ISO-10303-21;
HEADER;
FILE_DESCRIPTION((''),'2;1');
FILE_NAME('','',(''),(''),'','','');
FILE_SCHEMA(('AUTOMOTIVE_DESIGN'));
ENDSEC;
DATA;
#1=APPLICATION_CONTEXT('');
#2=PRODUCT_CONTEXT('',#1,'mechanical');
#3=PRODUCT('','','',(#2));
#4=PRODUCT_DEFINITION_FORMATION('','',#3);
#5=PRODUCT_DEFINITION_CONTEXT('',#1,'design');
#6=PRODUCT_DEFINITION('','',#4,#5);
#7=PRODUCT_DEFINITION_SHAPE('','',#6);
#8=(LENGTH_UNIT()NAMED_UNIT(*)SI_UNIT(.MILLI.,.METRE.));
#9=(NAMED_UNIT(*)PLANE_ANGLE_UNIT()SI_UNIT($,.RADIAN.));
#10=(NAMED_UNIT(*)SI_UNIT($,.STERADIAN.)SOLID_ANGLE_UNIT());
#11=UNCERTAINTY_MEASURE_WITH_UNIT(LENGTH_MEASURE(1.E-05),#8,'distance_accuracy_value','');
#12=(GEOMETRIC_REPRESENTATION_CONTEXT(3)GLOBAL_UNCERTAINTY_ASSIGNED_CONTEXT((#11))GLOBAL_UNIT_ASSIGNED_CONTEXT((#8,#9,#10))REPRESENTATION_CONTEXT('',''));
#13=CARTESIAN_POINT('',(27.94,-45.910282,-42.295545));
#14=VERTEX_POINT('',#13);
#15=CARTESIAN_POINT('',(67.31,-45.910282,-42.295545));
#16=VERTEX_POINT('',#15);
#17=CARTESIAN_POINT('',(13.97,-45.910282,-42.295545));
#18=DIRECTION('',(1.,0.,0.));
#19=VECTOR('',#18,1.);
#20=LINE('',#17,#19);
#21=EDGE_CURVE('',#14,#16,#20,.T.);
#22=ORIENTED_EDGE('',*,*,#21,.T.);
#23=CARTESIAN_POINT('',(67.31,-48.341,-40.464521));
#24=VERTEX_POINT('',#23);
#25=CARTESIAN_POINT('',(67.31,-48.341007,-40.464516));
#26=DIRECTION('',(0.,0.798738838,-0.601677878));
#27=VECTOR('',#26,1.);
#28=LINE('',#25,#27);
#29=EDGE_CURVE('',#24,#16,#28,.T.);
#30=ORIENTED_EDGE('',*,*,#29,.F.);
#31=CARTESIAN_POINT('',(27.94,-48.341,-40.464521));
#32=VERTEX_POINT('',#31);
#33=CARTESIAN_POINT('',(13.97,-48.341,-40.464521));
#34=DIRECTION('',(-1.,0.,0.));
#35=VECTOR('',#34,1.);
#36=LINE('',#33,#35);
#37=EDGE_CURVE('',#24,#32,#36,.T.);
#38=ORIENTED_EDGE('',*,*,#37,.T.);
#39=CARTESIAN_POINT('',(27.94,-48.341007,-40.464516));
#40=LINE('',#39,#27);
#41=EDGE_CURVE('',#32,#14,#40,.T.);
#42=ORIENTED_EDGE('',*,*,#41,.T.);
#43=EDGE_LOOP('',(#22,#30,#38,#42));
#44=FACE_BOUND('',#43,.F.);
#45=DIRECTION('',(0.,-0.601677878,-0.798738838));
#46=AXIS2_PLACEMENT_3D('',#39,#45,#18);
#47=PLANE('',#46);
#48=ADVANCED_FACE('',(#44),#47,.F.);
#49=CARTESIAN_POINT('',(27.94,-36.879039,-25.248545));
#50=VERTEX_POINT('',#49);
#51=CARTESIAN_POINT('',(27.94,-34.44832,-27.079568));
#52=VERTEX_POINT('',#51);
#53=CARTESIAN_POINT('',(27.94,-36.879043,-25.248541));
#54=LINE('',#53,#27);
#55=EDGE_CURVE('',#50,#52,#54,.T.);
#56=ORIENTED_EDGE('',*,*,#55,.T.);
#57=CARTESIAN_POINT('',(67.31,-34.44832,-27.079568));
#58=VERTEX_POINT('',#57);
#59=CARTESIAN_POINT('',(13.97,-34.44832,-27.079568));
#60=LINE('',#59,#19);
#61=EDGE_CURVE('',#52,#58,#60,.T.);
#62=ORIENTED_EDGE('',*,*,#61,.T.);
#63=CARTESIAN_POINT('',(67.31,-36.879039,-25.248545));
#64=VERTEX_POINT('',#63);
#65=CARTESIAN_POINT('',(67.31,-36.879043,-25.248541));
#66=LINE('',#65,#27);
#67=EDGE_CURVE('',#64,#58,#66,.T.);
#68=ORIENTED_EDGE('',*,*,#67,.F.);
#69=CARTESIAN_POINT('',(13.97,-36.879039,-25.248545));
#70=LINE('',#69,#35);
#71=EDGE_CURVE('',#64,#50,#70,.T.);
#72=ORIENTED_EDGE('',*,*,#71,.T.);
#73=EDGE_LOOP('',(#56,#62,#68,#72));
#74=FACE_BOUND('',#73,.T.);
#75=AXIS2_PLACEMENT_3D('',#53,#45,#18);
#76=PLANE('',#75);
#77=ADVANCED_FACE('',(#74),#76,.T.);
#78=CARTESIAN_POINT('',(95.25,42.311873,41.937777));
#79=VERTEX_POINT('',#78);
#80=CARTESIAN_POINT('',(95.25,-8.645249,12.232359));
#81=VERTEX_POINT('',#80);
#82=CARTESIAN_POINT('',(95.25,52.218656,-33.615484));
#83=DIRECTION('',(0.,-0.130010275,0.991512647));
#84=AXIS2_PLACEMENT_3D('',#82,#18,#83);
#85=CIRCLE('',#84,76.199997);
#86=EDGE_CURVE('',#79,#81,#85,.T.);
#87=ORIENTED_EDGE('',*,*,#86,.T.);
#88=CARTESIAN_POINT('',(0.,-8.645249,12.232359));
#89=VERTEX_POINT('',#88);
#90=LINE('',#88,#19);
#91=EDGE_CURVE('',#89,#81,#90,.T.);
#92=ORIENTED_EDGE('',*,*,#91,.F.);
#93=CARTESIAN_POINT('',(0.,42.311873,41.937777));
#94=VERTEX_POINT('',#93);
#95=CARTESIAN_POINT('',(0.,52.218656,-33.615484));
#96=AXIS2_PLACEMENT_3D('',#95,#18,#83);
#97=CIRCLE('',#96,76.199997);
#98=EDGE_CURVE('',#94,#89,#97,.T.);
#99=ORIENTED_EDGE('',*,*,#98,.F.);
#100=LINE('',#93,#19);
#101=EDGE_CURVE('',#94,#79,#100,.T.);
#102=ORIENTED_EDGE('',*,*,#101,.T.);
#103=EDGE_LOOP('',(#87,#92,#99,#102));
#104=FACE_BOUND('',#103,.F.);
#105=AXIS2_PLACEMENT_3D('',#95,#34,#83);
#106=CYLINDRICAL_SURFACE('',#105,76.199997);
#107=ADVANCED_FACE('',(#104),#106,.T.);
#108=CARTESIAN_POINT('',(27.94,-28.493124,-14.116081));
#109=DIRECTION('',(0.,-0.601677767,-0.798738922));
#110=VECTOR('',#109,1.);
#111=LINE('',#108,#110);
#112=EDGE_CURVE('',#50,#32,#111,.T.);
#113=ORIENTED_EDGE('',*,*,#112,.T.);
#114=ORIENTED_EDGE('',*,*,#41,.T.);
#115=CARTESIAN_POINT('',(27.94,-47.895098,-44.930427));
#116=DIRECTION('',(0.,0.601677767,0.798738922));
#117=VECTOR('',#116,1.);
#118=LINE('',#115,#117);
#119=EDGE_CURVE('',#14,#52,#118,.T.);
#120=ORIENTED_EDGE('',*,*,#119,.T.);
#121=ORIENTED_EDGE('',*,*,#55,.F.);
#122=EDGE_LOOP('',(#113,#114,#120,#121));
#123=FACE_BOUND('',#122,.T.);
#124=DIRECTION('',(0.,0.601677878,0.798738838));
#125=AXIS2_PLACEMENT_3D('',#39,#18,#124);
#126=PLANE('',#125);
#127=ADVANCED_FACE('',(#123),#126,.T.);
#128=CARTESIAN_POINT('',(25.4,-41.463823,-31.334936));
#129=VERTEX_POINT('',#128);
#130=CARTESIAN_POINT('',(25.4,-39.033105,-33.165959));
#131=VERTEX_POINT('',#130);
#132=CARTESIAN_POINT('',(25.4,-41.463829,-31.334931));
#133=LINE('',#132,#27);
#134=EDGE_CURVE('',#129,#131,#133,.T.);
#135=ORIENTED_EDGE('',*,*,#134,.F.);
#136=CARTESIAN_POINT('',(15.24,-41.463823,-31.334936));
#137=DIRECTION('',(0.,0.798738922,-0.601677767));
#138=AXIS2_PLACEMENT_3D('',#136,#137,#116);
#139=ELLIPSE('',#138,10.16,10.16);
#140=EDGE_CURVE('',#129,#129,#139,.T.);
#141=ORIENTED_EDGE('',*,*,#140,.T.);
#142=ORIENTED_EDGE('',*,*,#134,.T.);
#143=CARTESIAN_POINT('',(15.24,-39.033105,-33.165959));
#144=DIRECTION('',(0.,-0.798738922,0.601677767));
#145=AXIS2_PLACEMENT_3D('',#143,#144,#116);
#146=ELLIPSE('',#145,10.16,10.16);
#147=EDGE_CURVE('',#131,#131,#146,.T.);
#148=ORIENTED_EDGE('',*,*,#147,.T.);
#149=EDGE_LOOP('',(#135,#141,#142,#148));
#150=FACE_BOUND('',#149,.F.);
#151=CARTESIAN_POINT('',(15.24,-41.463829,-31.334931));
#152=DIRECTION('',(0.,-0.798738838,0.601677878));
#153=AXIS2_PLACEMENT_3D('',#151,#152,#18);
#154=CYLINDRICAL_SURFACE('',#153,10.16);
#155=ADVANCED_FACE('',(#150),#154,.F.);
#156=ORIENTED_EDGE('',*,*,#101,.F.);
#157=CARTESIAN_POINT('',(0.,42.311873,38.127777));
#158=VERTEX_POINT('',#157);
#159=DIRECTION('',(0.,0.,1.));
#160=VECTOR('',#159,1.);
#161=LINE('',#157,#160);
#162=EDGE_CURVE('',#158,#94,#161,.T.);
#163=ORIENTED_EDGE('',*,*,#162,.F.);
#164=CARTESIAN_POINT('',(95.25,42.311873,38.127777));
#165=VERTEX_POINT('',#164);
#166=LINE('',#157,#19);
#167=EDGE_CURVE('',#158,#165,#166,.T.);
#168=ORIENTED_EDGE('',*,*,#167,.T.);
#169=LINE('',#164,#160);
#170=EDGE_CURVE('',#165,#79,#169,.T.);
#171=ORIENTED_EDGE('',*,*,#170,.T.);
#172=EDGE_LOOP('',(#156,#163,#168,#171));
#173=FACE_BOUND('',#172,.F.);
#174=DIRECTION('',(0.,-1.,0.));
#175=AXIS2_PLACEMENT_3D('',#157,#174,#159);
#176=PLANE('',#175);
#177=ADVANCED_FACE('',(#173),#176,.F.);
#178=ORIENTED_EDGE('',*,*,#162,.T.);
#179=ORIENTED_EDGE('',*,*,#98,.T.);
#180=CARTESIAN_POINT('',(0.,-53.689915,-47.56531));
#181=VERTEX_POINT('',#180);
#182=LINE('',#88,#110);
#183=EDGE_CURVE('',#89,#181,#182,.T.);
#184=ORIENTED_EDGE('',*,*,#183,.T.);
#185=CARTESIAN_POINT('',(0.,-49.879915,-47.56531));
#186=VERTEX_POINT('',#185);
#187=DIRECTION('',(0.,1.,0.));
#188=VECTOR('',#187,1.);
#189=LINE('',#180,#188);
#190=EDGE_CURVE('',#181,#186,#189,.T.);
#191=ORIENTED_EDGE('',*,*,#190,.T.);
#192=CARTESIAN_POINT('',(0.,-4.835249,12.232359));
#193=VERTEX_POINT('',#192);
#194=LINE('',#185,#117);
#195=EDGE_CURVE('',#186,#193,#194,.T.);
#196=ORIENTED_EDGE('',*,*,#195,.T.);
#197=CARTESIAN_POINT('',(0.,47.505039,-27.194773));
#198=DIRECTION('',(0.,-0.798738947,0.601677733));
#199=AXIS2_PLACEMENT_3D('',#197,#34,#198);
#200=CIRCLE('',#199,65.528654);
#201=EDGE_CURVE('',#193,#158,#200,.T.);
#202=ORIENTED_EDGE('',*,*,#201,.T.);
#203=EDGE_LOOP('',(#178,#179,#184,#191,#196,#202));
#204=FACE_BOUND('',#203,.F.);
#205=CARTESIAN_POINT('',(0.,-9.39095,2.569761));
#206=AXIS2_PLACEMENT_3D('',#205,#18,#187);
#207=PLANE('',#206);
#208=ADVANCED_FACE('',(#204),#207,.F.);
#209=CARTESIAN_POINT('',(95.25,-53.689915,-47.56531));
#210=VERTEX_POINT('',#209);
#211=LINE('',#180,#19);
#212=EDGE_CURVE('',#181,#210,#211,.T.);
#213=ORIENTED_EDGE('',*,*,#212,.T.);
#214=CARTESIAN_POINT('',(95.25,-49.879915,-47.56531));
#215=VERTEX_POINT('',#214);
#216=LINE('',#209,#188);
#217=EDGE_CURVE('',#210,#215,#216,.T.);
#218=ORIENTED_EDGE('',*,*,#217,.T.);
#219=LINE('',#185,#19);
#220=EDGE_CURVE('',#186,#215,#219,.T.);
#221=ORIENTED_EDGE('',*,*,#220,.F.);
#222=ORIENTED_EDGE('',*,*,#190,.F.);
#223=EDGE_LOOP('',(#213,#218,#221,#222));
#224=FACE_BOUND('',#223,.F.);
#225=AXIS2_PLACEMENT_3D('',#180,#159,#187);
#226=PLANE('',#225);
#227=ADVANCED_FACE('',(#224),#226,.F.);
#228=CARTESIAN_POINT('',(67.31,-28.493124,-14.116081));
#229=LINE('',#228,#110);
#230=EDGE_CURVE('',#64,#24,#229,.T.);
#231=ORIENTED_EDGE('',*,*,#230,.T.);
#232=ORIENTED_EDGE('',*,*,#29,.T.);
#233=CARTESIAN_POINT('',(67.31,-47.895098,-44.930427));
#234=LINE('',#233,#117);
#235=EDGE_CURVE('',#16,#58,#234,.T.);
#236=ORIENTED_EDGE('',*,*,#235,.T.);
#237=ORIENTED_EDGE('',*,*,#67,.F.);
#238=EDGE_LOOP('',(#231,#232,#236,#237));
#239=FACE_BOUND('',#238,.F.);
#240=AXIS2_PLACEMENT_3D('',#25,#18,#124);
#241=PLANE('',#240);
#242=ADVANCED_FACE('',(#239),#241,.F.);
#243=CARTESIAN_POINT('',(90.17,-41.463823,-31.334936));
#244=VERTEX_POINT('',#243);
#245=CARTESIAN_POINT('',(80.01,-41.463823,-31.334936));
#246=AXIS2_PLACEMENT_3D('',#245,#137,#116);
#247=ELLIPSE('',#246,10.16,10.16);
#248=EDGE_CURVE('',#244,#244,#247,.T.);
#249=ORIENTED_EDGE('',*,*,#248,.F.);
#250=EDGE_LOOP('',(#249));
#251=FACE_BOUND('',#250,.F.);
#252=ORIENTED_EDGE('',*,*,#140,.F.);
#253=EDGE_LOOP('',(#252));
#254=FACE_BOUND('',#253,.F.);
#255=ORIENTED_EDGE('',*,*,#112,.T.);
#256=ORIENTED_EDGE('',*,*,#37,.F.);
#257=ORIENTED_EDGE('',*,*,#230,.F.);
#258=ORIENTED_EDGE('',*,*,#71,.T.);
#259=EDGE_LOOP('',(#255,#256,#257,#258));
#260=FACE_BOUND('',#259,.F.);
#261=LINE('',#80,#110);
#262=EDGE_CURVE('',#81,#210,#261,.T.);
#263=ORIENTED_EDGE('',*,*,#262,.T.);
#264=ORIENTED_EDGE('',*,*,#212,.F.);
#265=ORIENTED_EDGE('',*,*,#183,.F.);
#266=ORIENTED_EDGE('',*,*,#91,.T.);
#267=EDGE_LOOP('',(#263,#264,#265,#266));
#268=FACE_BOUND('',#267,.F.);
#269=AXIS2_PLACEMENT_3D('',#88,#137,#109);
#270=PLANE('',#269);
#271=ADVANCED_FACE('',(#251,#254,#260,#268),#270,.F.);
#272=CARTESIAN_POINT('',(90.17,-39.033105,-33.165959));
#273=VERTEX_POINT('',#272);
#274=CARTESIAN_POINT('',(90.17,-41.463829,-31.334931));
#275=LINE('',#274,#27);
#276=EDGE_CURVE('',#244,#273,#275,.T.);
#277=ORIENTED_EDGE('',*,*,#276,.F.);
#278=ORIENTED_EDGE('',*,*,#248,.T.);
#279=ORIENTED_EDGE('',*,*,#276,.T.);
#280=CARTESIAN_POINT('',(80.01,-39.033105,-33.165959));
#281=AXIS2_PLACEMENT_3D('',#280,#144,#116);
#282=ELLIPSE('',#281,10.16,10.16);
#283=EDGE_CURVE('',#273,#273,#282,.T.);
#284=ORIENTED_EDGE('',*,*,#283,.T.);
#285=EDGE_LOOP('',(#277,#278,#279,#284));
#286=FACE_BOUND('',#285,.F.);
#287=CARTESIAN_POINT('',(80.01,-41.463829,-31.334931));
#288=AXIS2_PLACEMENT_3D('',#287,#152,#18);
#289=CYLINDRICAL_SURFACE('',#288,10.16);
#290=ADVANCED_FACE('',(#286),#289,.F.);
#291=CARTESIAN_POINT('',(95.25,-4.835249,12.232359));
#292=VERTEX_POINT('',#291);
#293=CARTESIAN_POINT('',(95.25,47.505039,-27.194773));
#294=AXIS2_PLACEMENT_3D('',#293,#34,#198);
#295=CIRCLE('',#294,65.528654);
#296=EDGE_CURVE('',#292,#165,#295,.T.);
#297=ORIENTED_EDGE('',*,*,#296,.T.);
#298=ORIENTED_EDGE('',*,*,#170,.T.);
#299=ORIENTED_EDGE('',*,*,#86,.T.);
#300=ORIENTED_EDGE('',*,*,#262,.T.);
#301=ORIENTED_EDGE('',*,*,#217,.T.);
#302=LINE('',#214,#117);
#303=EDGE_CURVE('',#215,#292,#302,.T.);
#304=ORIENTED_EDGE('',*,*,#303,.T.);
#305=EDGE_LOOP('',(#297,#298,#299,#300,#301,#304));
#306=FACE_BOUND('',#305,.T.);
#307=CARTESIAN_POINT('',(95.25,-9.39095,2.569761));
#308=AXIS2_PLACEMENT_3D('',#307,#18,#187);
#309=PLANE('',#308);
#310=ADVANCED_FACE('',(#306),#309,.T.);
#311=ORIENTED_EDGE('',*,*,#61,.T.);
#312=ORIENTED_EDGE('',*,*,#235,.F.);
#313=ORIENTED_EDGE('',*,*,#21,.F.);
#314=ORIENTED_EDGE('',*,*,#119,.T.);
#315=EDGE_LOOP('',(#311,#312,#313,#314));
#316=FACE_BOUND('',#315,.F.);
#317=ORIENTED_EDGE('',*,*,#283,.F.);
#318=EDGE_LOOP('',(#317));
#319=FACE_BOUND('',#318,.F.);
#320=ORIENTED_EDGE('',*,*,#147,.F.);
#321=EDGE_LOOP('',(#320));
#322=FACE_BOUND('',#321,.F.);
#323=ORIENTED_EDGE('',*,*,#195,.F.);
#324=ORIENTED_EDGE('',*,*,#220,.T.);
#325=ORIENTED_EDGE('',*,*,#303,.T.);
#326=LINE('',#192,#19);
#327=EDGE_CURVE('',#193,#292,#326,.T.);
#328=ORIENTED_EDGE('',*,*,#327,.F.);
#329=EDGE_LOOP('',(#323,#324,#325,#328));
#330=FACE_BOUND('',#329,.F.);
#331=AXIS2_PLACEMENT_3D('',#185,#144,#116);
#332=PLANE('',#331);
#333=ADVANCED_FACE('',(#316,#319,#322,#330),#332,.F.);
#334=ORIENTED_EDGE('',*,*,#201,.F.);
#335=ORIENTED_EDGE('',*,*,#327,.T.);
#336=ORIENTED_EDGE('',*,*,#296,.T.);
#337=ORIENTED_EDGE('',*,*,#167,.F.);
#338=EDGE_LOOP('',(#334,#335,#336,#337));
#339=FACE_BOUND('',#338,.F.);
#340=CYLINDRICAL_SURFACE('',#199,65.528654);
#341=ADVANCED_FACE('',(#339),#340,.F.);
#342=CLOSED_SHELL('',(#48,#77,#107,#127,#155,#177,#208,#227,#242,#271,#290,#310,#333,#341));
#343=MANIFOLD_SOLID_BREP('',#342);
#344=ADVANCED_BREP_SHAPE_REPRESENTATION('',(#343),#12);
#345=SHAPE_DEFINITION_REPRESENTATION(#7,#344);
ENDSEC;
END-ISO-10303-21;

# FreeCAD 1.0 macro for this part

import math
import FreeCAD as App
import Part
import Sketcher
from FreeCAD import Vector
Q = App.Units.Quantity

doc = App.newDocument("Part")
body = doc.addObject("PartDesign::Body", "Body")

# Sketch on YZ plane
sketch1 = doc.addObject("Sketcher::SketchObject", "Sketch")
body.addObject(sketch1)
sketch1.AttachmentSupport = (doc.YZ_Plane, [""])
sketch1.MapMode = "FlatFace"
sketch1.addGeometry([
    Part.ArcOfCircle(Part.Circle(Vector(52.218656, -33.615484, 0), Vector(0, 0, 1), 76.199997), math.radians(97.470186), math.radians(143.009848)),  # 0
    Part.LineSegment(Vector(-8.645249, 12.232359, 0), Vector(-53.689915, -47.56531, 0)),  # 1
    Part.LineSegment(Vector(-53.689915, -47.56531, 0), Vector(-49.879915, -47.56531, 0)),  # 2
    Part.LineSegment(Vector(-49.879915, -47.56531, 0), Vector(-4.835249, 12.232359, 0)),  # 3
    Part.ArcOfCircle(Part.Circle(Vector(47.505039, -27.194773, 0), Vector(0, 0, 1), 65.528654), math.radians(94.545475), math.radians(143.009849)),  # 4
    Part.LineSegment(Vector(42.311873, 38.127777, 0), Vector(42.311873, 41.937777, 0)),  # 5
], False)
sketch1.addConstraint([
    Sketcher.Constraint("Coincident", 0, 2, 1, 1),
    Sketcher.Constraint("Coincident", 1, 2, 2, 1),
    Sketcher.Constraint("Coincident", 2, 2, 3, 1),
    Sketcher.Constraint("Coincident", 3, 2, 4, 2),
    Sketcher.Constraint("Coincident", 4, 1, 5, 1),
    Sketcher.Constraint("Coincident", 5, 2, 0, 1),
    Sketcher.Constraint("Horizontal", 2),
    Sketcher.Constraint("Vertical", 5),
    Sketcher.Constraint("Radius", 0, Q("2.9999999 in")),
    Sketcher.Constraint("DistanceX", 2, 1, 2, 2, Q("0.15 in")),
    Sketcher.Constraint("DistanceY", 5, 1, 5, 2, Q("0.15 in")),
    Sketcher.Constraint("DistanceX", 0, 2, 3, 2, Q("0.15 in")),
    Sketcher.Constraint("Radius", 4, 65.528654),
    Sketcher.Constraint("Distance", 1, 74.8651),
    Sketcher.Constraint("Distance", 3, 74.8651),
    Sketcher.Constraint("DistanceX", -1, 1, 4, 3, 47.505039),
    Sketcher.Constraint("DistanceX", 0, 2, -1, 1, 8.645249),
    Sketcher.Constraint("DistanceY", -1, 1, 0, 2, 12.232359),
    Sketcher.Constraint("DistanceY", 1, 2, -1, 1, 47.56531),
    Sketcher.Constraint("DistanceY", 0, 3, 4, 3, 6.420711),
])
pad1 = doc.addObject("PartDesign::Pad", "Pad")
body.addObject(pad1)
pad1.Profile = sketch1
pad1.Length = Q("3.75 in")

# Sketch on an angled plane
sketch2 = doc.addObject("Sketcher::SketchObject", "Sketch001")
body.addObject(sketch2)
sketch2.Placement = App.Placement(Vector(0, -11.394199, 8.583075), App.Rotation(Vector(1, 0, 0), Vector(0, 0.601677878, 0.798738838), Vector(0, -0.798738838, 0.601677878), "ZXY"))
sketch2.addGeometry([
    Part.Circle(Vector(15, -50, 0), Vector(0, 0, 1), 10),  # 0
    Part.LineSegment(Vector(28, -42, 0), Vector(28, -61, 0)),  # 1
    Part.LineSegment(Vector(28, -61, 0), Vector(67, -61, 0)),  # 2
    Part.LineSegment(Vector(67, -61, 0), Vector(67, -42, 0)),  # 3
    Part.LineSegment(Vector(67, -42, 0), Vector(28, -42, 0)),  # 4
    Part.Circle(Vector(80, -50, 0), Vector(0, 0, 1), 10),  # 5
], False)
sketch2.addConstraint([
    Sketcher.Constraint("Coincident", 1, 2, 2, 1),
    Sketcher.Constraint("Coincident", 2, 2, 3, 1),
    Sketcher.Constraint("Coincident", 3, 2, 4, 1),
    Sketcher.Constraint("Coincident", 4, 2, 1, 1),
    Sketcher.Constraint("Vertical", 1),
    Sketcher.Constraint("Horizontal", 2),
    Sketcher.Constraint("Vertical", 3),
    Sketcher.Constraint("Horizontal", 4),
    Sketcher.Constraint("Equal", 0, 5),
    Sketcher.Constraint("Horizontal", 0, 3, 5, 3),
    Sketcher.Constraint("Diameter", 0, Q("0.8 in")),
    Sketcher.Constraint("DistanceX", 2, 1, 2, 2, Q("1.55 in")),
    Sketcher.Constraint("DistanceY", 1, 2, 1, 1, Q("0.75 in")),
    Sketcher.Constraint("DistanceX", -1, 1, 0, 3, Q("0.6 in")),
    Sketcher.Constraint("DistanceX", -1, 1, 1, 2, Q("1.1 in")),
    Sketcher.Constraint("DistanceX", 2, 2, 5, 3, Q("0.5 in")),
    Sketcher.Constraint("DistanceY", 5, 3, 3, 2, Q("0.3 in")),
    Sketcher.Constraint("DistanceY", 0, 3, -1, 1, 49.976293),
])
pocket1 = doc.addObject("PartDesign::Pocket", "Pocket")
body.addObject(pocket1)
pocket1.Profile = sketch2
pocket1.Length = Q("1 in")

doc.recompute()
